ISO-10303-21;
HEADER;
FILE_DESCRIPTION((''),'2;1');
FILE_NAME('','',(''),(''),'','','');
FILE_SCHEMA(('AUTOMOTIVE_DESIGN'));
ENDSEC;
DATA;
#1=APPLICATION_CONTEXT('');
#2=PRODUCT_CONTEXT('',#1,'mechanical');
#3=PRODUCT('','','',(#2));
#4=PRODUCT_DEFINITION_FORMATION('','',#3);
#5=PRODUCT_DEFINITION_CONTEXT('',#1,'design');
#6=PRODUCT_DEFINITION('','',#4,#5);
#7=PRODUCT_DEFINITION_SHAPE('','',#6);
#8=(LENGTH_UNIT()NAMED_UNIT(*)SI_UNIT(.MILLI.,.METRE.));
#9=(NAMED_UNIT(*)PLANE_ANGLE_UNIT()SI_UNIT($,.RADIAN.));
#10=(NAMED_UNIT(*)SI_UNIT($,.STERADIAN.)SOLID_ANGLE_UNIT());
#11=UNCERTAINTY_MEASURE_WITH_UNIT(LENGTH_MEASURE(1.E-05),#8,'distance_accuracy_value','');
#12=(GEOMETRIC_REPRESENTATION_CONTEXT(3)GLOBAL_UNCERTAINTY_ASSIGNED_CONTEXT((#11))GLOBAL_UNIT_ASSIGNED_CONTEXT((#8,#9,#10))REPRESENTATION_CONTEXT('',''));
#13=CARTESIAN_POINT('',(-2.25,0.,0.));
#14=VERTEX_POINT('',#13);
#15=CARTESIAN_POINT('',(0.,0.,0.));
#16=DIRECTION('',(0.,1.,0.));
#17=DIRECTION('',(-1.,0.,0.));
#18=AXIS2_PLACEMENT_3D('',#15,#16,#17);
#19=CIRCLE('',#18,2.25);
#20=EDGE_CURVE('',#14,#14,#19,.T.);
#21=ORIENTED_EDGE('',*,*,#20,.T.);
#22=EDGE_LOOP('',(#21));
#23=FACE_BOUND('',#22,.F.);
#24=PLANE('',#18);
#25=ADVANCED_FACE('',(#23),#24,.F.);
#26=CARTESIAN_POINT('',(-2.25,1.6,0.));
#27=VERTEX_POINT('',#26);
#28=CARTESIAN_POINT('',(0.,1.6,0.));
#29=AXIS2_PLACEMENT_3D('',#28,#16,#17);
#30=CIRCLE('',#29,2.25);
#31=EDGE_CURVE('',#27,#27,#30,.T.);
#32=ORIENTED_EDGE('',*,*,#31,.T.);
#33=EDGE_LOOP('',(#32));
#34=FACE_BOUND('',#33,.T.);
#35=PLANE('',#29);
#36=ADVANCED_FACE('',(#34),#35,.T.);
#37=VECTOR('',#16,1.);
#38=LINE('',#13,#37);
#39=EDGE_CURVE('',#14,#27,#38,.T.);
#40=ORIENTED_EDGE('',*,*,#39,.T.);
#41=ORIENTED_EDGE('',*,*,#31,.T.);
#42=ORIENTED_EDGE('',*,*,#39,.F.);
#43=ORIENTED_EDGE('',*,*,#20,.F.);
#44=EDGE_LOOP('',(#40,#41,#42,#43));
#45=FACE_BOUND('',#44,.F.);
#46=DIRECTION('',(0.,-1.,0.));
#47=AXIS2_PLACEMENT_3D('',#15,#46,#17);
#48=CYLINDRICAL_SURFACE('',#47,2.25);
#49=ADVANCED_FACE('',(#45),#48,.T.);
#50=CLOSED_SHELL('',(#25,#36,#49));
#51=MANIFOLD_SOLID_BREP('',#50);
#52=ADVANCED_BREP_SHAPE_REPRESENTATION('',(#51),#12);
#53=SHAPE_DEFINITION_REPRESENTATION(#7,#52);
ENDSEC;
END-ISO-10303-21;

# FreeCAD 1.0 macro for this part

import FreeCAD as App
import Part
import Sketcher
Q = App.Units.Quantity

doc = App.newDocument("Part")
body = doc.addObject("PartDesign::Body", "Body")

# Sketch on XZ plane
sketch1 = body.newObject("Sketcher::SketchObject", "Sketch")
sketch1.AttachmentSupport = (doc.getObject("XZ_Plane"), [""])
sketch1.MapMode = "FlatFace"
sketch1.addGeometry(Part.Circle(App.Vector(0, 0, 0), App.Vector(0, 0, 1), 2.2), False)
sketch1.addConstraint([
    Sketcher.Constraint("Coincident", 0, 3, -1, 1),
    Sketcher.Constraint("Diameter", 0, Q("4.5 mm")),
])
pad1 = body.newObject("PartDesign::Pad", "Pad")
pad1.Profile = sketch1
pad1.Length = 1.6
pad1.Reversed = True

doc.recompute()
